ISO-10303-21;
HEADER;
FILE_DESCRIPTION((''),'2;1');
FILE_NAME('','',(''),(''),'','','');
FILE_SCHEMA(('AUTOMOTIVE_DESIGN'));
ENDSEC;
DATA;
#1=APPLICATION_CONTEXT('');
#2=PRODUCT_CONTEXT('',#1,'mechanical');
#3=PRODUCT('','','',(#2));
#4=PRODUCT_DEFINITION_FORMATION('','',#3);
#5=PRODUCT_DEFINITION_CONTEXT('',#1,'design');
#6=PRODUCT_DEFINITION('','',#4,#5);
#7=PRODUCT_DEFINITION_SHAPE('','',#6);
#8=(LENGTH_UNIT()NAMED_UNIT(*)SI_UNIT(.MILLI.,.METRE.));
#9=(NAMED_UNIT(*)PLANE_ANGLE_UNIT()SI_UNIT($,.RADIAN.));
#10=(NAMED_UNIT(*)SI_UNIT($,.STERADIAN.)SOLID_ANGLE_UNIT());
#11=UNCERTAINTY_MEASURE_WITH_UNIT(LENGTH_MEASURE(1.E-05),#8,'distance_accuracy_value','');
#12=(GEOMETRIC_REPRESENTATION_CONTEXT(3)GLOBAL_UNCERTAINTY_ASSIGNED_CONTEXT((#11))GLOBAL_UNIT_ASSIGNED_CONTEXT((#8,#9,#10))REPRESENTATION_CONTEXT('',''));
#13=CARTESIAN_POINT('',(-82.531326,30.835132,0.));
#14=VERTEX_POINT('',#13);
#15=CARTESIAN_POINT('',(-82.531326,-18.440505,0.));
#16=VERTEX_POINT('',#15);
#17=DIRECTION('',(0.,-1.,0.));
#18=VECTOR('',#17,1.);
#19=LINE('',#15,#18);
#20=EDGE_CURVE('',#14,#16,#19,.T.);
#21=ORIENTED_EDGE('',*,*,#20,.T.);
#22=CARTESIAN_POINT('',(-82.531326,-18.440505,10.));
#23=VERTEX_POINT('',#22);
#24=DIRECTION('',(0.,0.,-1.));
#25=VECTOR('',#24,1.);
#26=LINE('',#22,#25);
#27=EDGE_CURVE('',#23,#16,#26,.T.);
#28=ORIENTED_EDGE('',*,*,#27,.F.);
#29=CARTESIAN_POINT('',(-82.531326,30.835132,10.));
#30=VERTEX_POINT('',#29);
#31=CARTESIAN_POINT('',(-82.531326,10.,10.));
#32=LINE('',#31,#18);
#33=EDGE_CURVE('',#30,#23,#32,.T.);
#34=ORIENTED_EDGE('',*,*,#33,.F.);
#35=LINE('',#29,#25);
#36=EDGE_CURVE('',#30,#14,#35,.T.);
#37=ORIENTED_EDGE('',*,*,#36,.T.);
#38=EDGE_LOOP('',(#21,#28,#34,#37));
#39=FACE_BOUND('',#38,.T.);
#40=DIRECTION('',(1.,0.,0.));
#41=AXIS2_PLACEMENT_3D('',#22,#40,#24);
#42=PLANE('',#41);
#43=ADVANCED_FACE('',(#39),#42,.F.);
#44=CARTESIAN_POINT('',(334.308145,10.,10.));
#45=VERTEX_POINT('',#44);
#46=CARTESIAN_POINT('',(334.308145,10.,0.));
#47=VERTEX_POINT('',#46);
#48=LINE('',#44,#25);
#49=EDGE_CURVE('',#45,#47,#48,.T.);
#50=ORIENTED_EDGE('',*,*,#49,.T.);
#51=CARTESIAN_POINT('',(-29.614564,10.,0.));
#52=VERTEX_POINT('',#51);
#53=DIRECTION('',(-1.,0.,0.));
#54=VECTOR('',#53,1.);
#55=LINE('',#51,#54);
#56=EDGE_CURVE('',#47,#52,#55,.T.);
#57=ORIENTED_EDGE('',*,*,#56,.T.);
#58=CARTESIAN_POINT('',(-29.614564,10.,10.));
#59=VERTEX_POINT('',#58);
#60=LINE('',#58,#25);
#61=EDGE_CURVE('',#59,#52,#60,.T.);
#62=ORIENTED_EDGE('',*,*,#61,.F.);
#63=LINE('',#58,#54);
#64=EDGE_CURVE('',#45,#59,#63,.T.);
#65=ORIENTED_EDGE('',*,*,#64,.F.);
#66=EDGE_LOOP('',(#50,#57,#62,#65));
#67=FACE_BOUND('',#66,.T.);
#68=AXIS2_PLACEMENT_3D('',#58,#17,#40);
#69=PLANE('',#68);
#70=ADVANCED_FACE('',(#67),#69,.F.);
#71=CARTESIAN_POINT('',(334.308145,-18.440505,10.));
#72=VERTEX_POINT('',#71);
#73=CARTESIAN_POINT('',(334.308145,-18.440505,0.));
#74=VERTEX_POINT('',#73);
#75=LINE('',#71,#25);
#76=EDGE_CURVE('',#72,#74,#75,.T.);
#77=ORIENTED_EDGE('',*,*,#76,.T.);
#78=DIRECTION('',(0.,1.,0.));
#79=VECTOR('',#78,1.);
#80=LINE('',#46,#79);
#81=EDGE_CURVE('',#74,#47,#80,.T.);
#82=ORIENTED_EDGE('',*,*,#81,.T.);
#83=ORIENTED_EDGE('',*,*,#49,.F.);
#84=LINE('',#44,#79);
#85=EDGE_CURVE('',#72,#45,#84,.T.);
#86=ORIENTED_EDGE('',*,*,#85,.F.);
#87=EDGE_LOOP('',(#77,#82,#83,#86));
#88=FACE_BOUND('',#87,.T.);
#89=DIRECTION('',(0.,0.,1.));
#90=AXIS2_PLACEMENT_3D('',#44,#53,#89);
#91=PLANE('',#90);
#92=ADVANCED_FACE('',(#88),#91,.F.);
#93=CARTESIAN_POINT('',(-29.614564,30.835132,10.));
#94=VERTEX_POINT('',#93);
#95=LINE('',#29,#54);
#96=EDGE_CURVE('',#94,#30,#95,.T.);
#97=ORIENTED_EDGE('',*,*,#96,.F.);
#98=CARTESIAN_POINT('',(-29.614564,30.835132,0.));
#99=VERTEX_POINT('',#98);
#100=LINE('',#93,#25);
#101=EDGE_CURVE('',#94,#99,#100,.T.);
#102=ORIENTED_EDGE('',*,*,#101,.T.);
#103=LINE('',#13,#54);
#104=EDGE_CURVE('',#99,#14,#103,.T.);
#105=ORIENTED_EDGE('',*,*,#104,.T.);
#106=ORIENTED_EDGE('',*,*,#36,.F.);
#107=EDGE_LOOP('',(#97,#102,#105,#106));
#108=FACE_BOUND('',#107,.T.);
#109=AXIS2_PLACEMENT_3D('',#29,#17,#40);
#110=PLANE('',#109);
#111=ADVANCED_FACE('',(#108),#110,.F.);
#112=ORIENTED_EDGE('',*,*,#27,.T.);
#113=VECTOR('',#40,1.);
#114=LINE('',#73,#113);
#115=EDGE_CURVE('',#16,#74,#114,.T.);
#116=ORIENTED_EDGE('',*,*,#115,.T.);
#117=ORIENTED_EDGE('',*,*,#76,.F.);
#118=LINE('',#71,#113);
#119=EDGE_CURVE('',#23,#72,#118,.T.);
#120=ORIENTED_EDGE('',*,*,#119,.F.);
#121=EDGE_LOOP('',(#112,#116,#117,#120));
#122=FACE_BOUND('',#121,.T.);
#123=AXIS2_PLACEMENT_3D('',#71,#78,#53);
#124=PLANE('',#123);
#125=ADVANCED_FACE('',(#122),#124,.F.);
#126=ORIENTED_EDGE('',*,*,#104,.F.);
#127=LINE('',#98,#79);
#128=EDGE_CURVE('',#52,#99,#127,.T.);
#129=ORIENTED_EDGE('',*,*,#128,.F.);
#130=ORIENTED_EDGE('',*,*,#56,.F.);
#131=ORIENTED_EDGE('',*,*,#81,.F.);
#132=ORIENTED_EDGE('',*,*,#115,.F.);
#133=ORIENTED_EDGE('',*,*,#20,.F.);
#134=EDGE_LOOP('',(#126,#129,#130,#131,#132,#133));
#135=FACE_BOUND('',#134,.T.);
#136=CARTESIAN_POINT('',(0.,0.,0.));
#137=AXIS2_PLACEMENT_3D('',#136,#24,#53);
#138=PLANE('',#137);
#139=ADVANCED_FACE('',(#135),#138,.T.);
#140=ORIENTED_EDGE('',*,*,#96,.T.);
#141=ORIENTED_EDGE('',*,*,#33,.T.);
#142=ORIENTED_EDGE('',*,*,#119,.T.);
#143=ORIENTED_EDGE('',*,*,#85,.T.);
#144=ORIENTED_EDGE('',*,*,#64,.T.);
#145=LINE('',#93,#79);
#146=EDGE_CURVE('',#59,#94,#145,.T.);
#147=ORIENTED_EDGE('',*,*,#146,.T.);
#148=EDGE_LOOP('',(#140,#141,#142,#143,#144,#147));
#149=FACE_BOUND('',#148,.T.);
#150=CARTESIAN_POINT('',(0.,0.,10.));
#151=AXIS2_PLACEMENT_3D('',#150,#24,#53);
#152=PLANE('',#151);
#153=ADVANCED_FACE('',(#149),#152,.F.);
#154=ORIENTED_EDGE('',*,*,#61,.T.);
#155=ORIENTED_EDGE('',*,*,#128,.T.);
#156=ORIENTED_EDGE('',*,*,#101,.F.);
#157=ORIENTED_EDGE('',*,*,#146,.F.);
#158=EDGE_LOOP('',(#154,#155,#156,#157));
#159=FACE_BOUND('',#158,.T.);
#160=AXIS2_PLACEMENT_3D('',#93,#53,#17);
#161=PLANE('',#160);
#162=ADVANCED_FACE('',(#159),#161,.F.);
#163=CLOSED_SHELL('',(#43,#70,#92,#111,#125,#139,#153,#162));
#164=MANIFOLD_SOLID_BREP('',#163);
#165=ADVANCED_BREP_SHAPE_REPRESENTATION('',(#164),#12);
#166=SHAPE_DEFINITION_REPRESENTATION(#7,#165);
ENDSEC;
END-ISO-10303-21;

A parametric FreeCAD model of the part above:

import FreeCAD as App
import Part
import Sketcher


def add_polygon(sketch, points):
    """Adds a closed chain of lines whose ends are joined by coincident constraints."""
    first, n = sketch.GeometryCount, len(points)
    for a, b in zip(points, points[1:] + points[:1]):
        sketch.addGeometry(Part.LineSegment(App.Vector(*a, 0), App.Vector(*b, 0)), False)
    for i in range(n):
        sketch.addConstraint(Sketcher.Constraint("Coincident", first + i, 2, first + (i + 1) % n, 1))

doc = App.newDocument("Part")
body = doc.addObject("PartDesign::Body", "Body")

# Sketch on XY plane
sketch1 = body.newObject("Sketcher::SketchObject", "Sketch")
sketch1.AttachmentSupport = (doc.getObject("XY_Plane"), [""])
sketch1.MapMode = "FlatFace"
add_polygon(sketch1, [(-82.531326, 30.835132), (-82.531326, -18.440505), (334.308145, -18.440505), (334.308145, 10), (-29.614564, 10), (-29.614564, 30.835132)])  # lines 0-5
sketch1.addConstraint(Sketcher.Constraint("Vertical", 0))
sketch1.addConstraint(Sketcher.Constraint("Horizontal", 1))
sketch1.addConstraint(Sketcher.Constraint("Vertical", 2))
sketch1.addConstraint(Sketcher.Constraint("Horizontal", 3))
sketch1.addConstraint(Sketcher.Constraint("Vertical", 4))
sketch1.addConstraint(Sketcher.Constraint("Horizontal", 5))
sketch1.addConstraint(Sketcher.Constraint("DistanceY", -1, 1, 2, 2, 10.0))
sketch1.addConstraint(Sketcher.Constraint("DistanceX", 1, 1, 1, 2, 416.839471))
sketch1.addConstraint(Sketcher.Constraint("DistanceX", 3, 2, 3, 1, 363.922709))
sketch1.addConstraint(Sketcher.Constraint("DistanceY", 0, 2, 0, 1, 49.275637))
sketch1.addConstraint(Sketcher.Constraint("DistanceY", 2, 1, 2, 2, 28.440505))
sketch1.addConstraint(Sketcher.Constraint("DistanceX", 0, 2, -1, 1, 82.531326))
pad1 = body.newObject("PartDesign::Pad", "Pad")
pad1.Profile = sketch1
pad1.Length = 10

doc.recompute()
